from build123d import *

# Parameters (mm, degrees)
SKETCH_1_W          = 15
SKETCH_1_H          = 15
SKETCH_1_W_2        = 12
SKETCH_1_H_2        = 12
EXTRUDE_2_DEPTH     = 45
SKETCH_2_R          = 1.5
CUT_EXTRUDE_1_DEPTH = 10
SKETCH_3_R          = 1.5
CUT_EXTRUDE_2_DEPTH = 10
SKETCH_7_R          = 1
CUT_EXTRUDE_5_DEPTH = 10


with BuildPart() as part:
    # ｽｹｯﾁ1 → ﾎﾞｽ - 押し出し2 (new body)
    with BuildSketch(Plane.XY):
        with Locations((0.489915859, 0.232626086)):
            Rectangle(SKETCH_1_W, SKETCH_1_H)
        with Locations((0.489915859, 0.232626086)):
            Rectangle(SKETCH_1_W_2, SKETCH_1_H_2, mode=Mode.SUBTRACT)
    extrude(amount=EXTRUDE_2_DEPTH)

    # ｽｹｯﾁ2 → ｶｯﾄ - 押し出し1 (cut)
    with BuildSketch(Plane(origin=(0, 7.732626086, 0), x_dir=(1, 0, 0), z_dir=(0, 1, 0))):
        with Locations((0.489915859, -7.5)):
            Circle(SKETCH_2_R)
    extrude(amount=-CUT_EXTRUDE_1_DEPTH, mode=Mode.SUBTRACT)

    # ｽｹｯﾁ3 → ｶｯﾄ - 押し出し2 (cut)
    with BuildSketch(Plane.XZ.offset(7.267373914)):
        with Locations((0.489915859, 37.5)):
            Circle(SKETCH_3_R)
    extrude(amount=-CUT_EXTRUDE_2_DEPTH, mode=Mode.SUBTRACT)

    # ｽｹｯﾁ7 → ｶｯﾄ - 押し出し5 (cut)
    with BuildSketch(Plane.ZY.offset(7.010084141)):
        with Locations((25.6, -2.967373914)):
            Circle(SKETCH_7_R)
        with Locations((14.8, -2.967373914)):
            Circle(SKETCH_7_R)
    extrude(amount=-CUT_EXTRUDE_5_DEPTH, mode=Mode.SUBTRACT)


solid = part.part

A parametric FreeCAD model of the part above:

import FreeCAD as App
import Part
import Sketcher

V = App.Vector
Q = App.Units.Quantity

doc = App.newDocument("Part")
body = doc.addObject("PartDesign::Body", "Body")

# Sketch on XY plane
sketch1 = body.newObject("Sketcher::SketchObject", "Sketch")
sketch1.AttachmentSupport = (doc.getObject("XY_Plane"), [""])
sketch1.MapMode = "FlatFace"
sketch1.addGeometry([
    Part.LineSegment(V(-7, 8, 0), V(-7, -7, 0)),  # 0
    Part.LineSegment(V(-7, -7, 0), V(8, -7, 0)),  # 1
    Part.LineSegment(V(8, -7, 0), V(8, 8, 0)),  # 2
    Part.LineSegment(V(8, 8, 0), V(-7, 8, 0)),  # 3
    Part.LineSegment(V(6, -6, 0), V(-6, -6, 0)),  # 4
    Part.LineSegment(V(-6, -6, 0), V(-6, 6, 0)),  # 5
    Part.LineSegment(V(-6, 6, 0), V(6, 6, 0)),  # 6
    Part.LineSegment(V(6, 6, 0), V(6, -6, 0)),  # 7
], False)
sketch1.addConstraint([
    Sketcher.Constraint("Coincident", 0, 2, 1, 1),
    Sketcher.Constraint("Coincident", 1, 2, 2, 1),
    Sketcher.Constraint("Coincident", 2, 2, 3, 1),
    Sketcher.Constraint("Coincident", 3, 2, 0, 1),
    Sketcher.Constraint("Coincident", 4, 2, 5, 1),
    Sketcher.Constraint("Coincident", 5, 2, 6, 1),
    Sketcher.Constraint("Coincident", 6, 2, 7, 1),
    Sketcher.Constraint("Coincident", 7, 2, 4, 1),
    Sketcher.Constraint("Vertical", 0),
    Sketcher.Constraint("Horizontal", 1),
    Sketcher.Constraint("Vertical", 2),
    Sketcher.Constraint("Horizontal", 3),
    Sketcher.Constraint("Horizontal", 4),
    Sketcher.Constraint("Vertical", 5),
    Sketcher.Constraint("Horizontal", 6),
    Sketcher.Constraint("Vertical", 7),
    Sketcher.Constraint("Equal", 3, 0),
    Sketcher.Constraint("Equal", 6, 5),
    Sketcher.Constraint("DistanceX", 1, 1, 1, 2, Q("15 mm")),
    Sketcher.Constraint("DistanceX", 4, 2, 4, 1, Q("12 mm")),
    Sketcher.Constraint("DistanceX", 0, 2, 4, 2, Q("1.5 mm")),
    Sketcher.Constraint("DistanceY", 0, 2, 4, 2, Q("1.5 mm")),
    Sketcher.Constraint("DistanceX", 0, 2, -1, 1, Q("7.010084 mm")),
    Sketcher.Constraint("DistanceY", 0, 2, -1, 1, Q("7.267374 mm")),
])
pad1 = body.newObject("PartDesign::Pad", "Pad")
pad1.Profile = sketch1
pad1.Length = 45

# Sketch on XZ plane
sketch2 = body.newObject("Sketcher::SketchObject", "Sketch001")
sketch2.AttachmentSupport = (doc.getObject("XZ_Plane"), [""])
sketch2.MapMode = "FlatFace"
sketch2.AttachmentOffset = App.Placement(V(0, 0, -7.732626), App.Rotation())
sketch2.addGeometry(Part.Circle(V(0.5, 7.5, 0), V(0, 0, 1), 1.5), False)
sketch2.addConstraint([
    Sketcher.Constraint("Diameter", 0, Q("3 mm")),
    Sketcher.Constraint("DistanceY", -1, 1, 0, 3, Q("7.5 mm")),
    Sketcher.Constraint("DistanceX", -1, 1, 0, 3, Q("0.489916 mm")),
])
pocket1 = body.newObject("PartDesign::Pocket", "Pocket")
pocket1.Profile = sketch2
pocket1.Length = 10
pocket1.Reversed = True

# Sketch on XZ plane
sketch3 = body.newObject("Sketcher::SketchObject", "Sketch002")
sketch3.AttachmentSupport = (doc.getObject("XZ_Plane"), [""])
sketch3.MapMode = "FlatFace"
sketch3.AttachmentOffset = App.Placement(V(0, 0, 7.267374), App.Rotation())
sketch3.addGeometry(Part.Circle(V(0.5, 37.5, 0), V(0, 0, 1), 1.5), False)
sketch3.addConstraint([
    Sketcher.Constraint("Diameter", 0, Q("3 mm")),
    Sketcher.Constraint("DistanceY", -1, 1, 0, 3, Q("37.5 mm")),
    Sketcher.Constraint("DistanceX", -1, 1, 0, 3, Q("0.489916 mm")),
])
pocket2 = body.newObject("PartDesign::Pocket", "Pocket001")
pocket2.Profile = sketch3
pocket2.Length = 10

# Sketch on YZ plane
sketch4 = body.newObject("Sketcher::SketchObject", "Sketch003")
sketch4.AttachmentSupport = (doc.getObject("YZ_Plane"), [""])
sketch4.MapMode = "FlatFace"
sketch4.AttachmentOffset = App.Placement(V(0, 0, -7.010084), App.Rotation())
sketch4.addGeometry([
    Part.Circle(V(-3, 25.6, 0), V(0, 0, 1), 1),
    Part.Circle(V(-3, 14.8, 0), V(0, 0, 1), 1),
], False)
sketch4.addConstraint([
    Sketcher.Constraint("Equal", 0, 1),
    Sketcher.Constraint("Vertical", 0, 3, 1, 3),
    Sketcher.Constraint("Diameter", 0, Q("2 mm")),
    Sketcher.Constraint("DistanceY", -1, 1, 0, 3, Q("25.6 mm")),
    Sketcher.Constraint("DistanceY", -1, 1, 1, 3, Q("14.8 mm")),
    Sketcher.Constraint("DistanceX", 0, 3, -1, 1, Q("2.967374 mm")),
])
pocket3 = body.newObject("PartDesign::Pocket", "Pocket002")
pocket3.Profile = sketch4
pocket3.Length = 10
pocket3.Reversed = True

doc.recompute()
